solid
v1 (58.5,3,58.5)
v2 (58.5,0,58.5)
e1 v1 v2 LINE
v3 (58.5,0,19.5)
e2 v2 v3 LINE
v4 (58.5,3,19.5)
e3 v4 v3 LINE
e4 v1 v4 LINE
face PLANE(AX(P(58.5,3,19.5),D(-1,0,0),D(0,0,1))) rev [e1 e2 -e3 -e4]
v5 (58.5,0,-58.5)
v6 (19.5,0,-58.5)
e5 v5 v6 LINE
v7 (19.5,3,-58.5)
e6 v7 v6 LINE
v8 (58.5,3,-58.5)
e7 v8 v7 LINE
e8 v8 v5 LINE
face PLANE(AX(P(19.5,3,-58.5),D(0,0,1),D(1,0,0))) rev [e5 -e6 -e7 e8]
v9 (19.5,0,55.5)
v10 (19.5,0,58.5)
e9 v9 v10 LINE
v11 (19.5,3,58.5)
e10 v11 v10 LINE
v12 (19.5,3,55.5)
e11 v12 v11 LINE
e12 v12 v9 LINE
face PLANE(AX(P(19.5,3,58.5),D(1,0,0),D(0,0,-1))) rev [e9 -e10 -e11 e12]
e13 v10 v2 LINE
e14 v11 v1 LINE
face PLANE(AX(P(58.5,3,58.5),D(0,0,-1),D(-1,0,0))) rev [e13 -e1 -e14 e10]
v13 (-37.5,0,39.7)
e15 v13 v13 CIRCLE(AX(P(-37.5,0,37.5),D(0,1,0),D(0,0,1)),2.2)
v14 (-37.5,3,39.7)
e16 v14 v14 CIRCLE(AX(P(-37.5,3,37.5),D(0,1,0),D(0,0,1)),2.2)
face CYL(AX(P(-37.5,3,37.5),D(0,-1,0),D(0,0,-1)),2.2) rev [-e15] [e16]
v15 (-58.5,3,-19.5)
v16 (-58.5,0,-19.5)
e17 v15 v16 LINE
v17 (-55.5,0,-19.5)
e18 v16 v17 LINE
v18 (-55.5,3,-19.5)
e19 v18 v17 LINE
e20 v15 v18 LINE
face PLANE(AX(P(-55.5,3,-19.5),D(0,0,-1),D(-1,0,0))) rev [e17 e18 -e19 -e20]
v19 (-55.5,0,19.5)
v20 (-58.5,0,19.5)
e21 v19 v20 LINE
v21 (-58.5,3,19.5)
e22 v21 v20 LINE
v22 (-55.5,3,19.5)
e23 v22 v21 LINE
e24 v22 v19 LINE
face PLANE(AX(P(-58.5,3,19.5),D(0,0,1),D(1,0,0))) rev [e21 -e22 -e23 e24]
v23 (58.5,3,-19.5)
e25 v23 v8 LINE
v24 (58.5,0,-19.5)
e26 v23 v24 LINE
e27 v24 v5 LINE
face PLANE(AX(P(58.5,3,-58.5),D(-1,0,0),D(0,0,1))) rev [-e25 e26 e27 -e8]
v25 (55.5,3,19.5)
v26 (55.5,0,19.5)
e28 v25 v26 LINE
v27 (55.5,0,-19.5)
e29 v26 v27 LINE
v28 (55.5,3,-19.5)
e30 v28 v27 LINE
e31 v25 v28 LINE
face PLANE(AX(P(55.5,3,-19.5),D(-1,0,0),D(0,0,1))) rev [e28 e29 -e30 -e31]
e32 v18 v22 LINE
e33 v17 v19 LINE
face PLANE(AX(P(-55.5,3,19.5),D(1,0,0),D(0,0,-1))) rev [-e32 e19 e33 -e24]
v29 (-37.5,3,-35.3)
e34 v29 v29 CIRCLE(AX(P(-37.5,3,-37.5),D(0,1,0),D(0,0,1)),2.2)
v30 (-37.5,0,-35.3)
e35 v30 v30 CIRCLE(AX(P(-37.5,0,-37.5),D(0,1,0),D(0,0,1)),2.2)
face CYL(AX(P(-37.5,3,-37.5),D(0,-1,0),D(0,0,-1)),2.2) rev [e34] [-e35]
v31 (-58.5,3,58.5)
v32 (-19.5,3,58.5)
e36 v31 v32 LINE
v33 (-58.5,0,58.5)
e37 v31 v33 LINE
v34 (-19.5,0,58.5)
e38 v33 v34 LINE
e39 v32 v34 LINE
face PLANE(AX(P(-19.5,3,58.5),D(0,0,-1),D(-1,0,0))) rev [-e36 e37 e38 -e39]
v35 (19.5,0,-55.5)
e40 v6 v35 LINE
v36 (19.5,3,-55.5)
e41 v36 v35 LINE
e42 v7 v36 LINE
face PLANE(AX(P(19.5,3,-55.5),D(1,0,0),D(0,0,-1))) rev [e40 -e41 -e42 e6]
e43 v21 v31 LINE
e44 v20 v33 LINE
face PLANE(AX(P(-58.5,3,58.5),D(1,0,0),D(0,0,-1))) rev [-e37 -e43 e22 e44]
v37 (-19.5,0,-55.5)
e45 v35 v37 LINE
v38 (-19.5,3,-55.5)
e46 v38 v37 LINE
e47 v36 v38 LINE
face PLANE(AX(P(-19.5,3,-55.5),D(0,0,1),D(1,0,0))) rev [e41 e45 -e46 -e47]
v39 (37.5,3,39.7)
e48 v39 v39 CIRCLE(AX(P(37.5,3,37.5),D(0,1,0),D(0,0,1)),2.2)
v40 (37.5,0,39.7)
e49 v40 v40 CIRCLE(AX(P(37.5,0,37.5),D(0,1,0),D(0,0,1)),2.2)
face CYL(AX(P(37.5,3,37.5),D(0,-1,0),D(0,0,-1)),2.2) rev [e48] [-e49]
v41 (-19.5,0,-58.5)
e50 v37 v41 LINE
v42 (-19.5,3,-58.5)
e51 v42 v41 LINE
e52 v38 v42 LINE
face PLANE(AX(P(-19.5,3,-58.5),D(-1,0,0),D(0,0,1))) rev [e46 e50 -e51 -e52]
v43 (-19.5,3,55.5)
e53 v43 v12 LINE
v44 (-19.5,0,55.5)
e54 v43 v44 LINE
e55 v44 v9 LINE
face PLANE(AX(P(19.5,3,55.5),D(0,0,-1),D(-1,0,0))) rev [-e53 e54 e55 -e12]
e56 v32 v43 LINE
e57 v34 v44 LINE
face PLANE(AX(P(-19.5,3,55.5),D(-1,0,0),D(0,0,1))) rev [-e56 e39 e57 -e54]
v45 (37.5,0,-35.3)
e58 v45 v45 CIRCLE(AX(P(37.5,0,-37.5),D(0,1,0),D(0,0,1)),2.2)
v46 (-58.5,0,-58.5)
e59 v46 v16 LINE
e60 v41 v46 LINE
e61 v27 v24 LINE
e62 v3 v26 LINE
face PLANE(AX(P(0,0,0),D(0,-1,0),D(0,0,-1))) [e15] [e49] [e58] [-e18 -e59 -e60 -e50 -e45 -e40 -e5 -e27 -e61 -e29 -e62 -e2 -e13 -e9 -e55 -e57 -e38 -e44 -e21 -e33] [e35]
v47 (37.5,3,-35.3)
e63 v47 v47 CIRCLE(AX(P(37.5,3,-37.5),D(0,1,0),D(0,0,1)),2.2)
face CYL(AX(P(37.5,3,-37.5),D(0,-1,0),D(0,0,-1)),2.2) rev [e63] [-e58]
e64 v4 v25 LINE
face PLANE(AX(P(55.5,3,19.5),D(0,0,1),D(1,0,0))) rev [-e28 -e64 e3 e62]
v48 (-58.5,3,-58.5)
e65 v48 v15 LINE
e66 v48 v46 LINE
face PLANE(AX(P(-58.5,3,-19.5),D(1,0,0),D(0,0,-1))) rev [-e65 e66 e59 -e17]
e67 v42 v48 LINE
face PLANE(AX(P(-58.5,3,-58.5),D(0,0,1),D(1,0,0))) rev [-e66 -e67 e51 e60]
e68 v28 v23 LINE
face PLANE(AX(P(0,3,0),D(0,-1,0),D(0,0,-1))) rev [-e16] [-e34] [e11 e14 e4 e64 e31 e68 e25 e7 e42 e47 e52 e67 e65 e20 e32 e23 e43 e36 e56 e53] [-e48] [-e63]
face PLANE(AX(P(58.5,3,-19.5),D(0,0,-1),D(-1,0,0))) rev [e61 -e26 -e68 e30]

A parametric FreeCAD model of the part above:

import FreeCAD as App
import Part
import Sketcher
from FreeCAD import Vector

doc = App.newDocument("Part")
body = doc.addObject("PartDesign::Body", "Body")

# Sketch on XZ plane
sketch1 = doc.addObject("Sketcher::SketchObject", "Sketch")
body.addObject(sketch1)
sketch1.AttachmentSupport = (doc.XZ_Plane, [""])
sketch1.MapMode = "FlatFace"
sketch1.addGeometry(Part.LineSegment(Vector(-58.5, -58.5, 0), Vector(-58.5, -19.5, 0)), False)
sketch1.addGeometry(Part.LineSegment(Vector(-58.5, -19.5, 0), Vector(-55.5, -19.5, 0)), False)
sketch1.addGeometry(Part.LineSegment(Vector(-55.5, -19.5, 0), Vector(-55.5, 19.5, 0)), False)
sketch1.addGeometry(Part.LineSegment(Vector(-55.5, 19.5, 0), Vector(-58.5, 19.5, 0)), False)
sketch1.addGeometry(Part.LineSegment(Vector(-58.5, 19.5, 0), Vector(-58.5, 58.5, 0)), False)
sketch1.addGeometry(Part.LineSegment(Vector(-58.5, 58.5, 0), Vector(-19.5, 58.5, 0)), False)
sketch1.addGeometry(Part.LineSegment(Vector(-19.5, 58.5, 0), Vector(-19.5, 55.5, 0)), False)
sketch1.addGeometry(Part.LineSegment(Vector(-19.5, 55.5, 0), Vector(19.5, 55.5, 0)), False)
sketch1.addGeometry(Part.LineSegment(Vector(19.5, 55.5, 0), Vector(19.5, 58.5, 0)), False)
sketch1.addGeometry(Part.LineSegment(Vector(19.5, 58.5, 0), Vector(58.5, 58.5, 0)), False)
sketch1.addGeometry(Part.LineSegment(Vector(58.5, 58.5, 0), Vector(58.5, 19.5, 0)), False)
sketch1.addGeometry(Part.LineSegment(Vector(58.5, 19.5, 0), Vector(55.5, 19.5, 0)), False)
sketch1.addGeometry(Part.LineSegment(Vector(55.5, 19.5, 0), Vector(55.5, -19.5, 0)), False)
sketch1.addGeometry(Part.LineSegment(Vector(55.5, -19.5, 0), Vector(58.5, -19.5, 0)), False)
sketch1.addGeometry(Part.LineSegment(Vector(58.5, -19.5, 0), Vector(58.5, -58.5, 0)), False)
sketch1.addGeometry(Part.LineSegment(Vector(58.5, -58.5, 0), Vector(19.5, -58.5, 0)), False)
sketch1.addGeometry(Part.LineSegment(Vector(19.5, -58.5, 0), Vector(19.5, -55.5, 0)), False)
sketch1.addGeometry(Part.LineSegment(Vector(19.5, -55.5, 0), Vector(-19.5, -55.5, 0)), False)
sketch1.addGeometry(Part.LineSegment(Vector(-19.5, -55.5, 0), Vector(-19.5, -58.5, 0)), False)
sketch1.addGeometry(Part.LineSegment(Vector(-19.5, -58.5, 0), Vector(-58.5, -58.5, 0)), False)
sketch1.addGeometry(Part.Circle(Vector(37.5, 37.5, 0), Vector(0, 0, 1), 2.2), False)
sketch1.addGeometry(Part.Circle(Vector(-37.5, 37.5, 0), Vector(0, 0, 1), 2.2), False)
sketch1.addGeometry(Part.Circle(Vector(37.5, -37.5, 0), Vector(0, 0, 1), 2.2), False)
sketch1.addGeometry(Part.Circle(Vector(-37.5, -37.5, 0), Vector(0, 0, 1), 2.2), False)
sketch1.addConstraint(Sketcher.Constraint("Coincident", 0, 2, 1, 1))
sketch1.addConstraint(Sketcher.Constraint("Coincident", 1, 2, 2, 1))
sketch1.addConstraint(Sketcher.Constraint("Coincident", 2, 2, 3, 1))
sketch1.addConstraint(Sketcher.Constraint("Coincident", 3, 2, 4, 1))
sketch1.addConstraint(Sketcher.Constraint("Coincident", 4, 2, 5, 1))
sketch1.addConstraint(Sketcher.Constraint("Coincident", 5, 2, 6, 1))
sketch1.addConstraint(Sketcher.Constraint("Coincident", 6, 2, 7, 1))
sketch1.addConstraint(Sketcher.Constraint("Coincident", 7, 2, 8, 1))
sketch1.addConstraint(Sketcher.Constraint("Coincident", 8, 2, 9, 1))
sketch1.addConstraint(Sketcher.Constraint("Coincident", 9, 2, 10, 1))
sketch1.addConstraint(Sketcher.Constraint("Coincident", 10, 2, 11, 1))
sketch1.addConstraint(Sketcher.Constraint("Coincident", 11, 2, 12, 1))
sketch1.addConstraint(Sketcher.Constraint("Coincident", 12, 2, 13, 1))
sketch1.addConstraint(Sketcher.Constraint("Coincident", 13, 2, 14, 1))
sketch1.addConstraint(Sketcher.Constraint("Coincident", 14, 2, 15, 1))
sketch1.addConstraint(Sketcher.Constraint("Coincident", 15, 2, 16, 1))
sketch1.addConstraint(Sketcher.Constraint("Coincident", 16, 2, 17, 1))
sketch1.addConstraint(Sketcher.Constraint("Coincident", 17, 2, 18, 1))
sketch1.addConstraint(Sketcher.Constraint("Coincident", 18, 2, 19, 1))
sketch1.addConstraint(Sketcher.Constraint("Coincident", 19, 2, 0, 1))
sketch1.addConstraint(Sketcher.Constraint("Vertical", 0))
sketch1.addConstraint(Sketcher.Constraint("Horizontal", 1))
sketch1.addConstraint(Sketcher.Constraint("Vertical", 2))
sketch1.addConstraint(Sketcher.Constraint("Horizontal", 3))
sketch1.addConstraint(Sketcher.Constraint("Vertical", 4))
sketch1.addConstraint(Sketcher.Constraint("Horizontal", 5))
sketch1.addConstraint(Sketcher.Constraint("Vertical", 6))
sketch1.addConstraint(Sketcher.Constraint("Horizontal", 7))
sketch1.addConstraint(Sketcher.Constraint("Vertical", 8))
sketch1.addConstraint(Sketcher.Constraint("Horizontal", 9))
sketch1.addConstraint(Sketcher.Constraint("Vertical", 10))
sketch1.addConstraint(Sketcher.Constraint("Horizontal", 11))
sketch1.addConstraint(Sketcher.Constraint("Vertical", 12))
sketch1.addConstraint(Sketcher.Constraint("Horizontal", 13))
sketch1.addConstraint(Sketcher.Constraint("Vertical", 14))
sketch1.addConstraint(Sketcher.Constraint("Horizontal", 15))
sketch1.addConstraint(Sketcher.Constraint("Vertical", 16))
sketch1.addConstraint(Sketcher.Constraint("Horizontal", 17))
sketch1.addConstraint(Sketcher.Constraint("Vertical", 18))
sketch1.addConstraint(Sketcher.Constraint("Horizontal", 19))
sketch1.addConstraint(Sketcher.Constraint("Equal", 20, 21))
sketch1.addConstraint(Sketcher.Constraint("Equal", 21, 22))
sketch1.addConstraint(Sketcher.Constraint("Equal", 22, 23))
sketch1.addConstraint(Sketcher.Constraint("Symmetric", 21, 3, 22, 3, -1, 1))
sketch1.addConstraint(Sketcher.Constraint("Symmetric", 20, 3, 23, 3, -1, 1))
sketch1.addConstraint(Sketcher.Constraint("Symmetric", 0, 2, 10, 2, -1, 1))
sketch1.addConstraint(Sketcher.Constraint("Symmetric", 2, 2, 12, 2, -1, 1))
sketch1.addConstraint(Sketcher.Constraint("Symmetric", 4, 2, 14, 2, -1, 1))
sketch1.addConstraint(Sketcher.Constraint("Symmetric", 6, 2, 16, 2, -1, 1))
sketch1.addConstraint(Sketcher.Constraint("Symmetric", 8, 2, 18, 2, -1, 1))
sketch1.addConstraint(Sketcher.Constraint("Symmetric", 20, 3, 21, 3, -2))
sketch1.addConstraint(Sketcher.Constraint("Symmetric", 5, 2, 8, 2, -2))
sketch1.addConstraint(Sketcher.Constraint("Symmetric", 3, 2, 10, 2, -2))
sketch1.addConstraint(Sketcher.Constraint("Equal", 5, 7))
sketch1.addConstraint(Sketcher.Constraint("Equal", 19, 0))
sketch1.addConstraint(Sketcher.Constraint("Equal", 0, 2))
sketch1.addConstraint(Sketcher.Constraint("Equal", 13, 6))
sketch1.addConstraint(Sketcher.Constraint("Diameter", 20, 4.4))
sketch1.addConstraint(Sketcher.Constraint("DistanceX", 1, 1, 1, 2, 3.0))
sketch1.addConstraint(Sketcher.Constraint("DistanceX", 5, 1, 5, 2, 39.0))
sketch1.addConstraint(Sketcher.Constraint("DistanceX", 21, 3, 20, 3, 75.0))
sketch1.addConstraint(Sketcher.Constraint("DistanceY", 22, 3, 20, 3, 75.0))
pad1 = doc.addObject("PartDesign::Pad", "Pad")
body.addObject(pad1)
pad1.Profile = sketch1
pad1.Length = 3
pad1.Reversed = True

doc.recompute()
